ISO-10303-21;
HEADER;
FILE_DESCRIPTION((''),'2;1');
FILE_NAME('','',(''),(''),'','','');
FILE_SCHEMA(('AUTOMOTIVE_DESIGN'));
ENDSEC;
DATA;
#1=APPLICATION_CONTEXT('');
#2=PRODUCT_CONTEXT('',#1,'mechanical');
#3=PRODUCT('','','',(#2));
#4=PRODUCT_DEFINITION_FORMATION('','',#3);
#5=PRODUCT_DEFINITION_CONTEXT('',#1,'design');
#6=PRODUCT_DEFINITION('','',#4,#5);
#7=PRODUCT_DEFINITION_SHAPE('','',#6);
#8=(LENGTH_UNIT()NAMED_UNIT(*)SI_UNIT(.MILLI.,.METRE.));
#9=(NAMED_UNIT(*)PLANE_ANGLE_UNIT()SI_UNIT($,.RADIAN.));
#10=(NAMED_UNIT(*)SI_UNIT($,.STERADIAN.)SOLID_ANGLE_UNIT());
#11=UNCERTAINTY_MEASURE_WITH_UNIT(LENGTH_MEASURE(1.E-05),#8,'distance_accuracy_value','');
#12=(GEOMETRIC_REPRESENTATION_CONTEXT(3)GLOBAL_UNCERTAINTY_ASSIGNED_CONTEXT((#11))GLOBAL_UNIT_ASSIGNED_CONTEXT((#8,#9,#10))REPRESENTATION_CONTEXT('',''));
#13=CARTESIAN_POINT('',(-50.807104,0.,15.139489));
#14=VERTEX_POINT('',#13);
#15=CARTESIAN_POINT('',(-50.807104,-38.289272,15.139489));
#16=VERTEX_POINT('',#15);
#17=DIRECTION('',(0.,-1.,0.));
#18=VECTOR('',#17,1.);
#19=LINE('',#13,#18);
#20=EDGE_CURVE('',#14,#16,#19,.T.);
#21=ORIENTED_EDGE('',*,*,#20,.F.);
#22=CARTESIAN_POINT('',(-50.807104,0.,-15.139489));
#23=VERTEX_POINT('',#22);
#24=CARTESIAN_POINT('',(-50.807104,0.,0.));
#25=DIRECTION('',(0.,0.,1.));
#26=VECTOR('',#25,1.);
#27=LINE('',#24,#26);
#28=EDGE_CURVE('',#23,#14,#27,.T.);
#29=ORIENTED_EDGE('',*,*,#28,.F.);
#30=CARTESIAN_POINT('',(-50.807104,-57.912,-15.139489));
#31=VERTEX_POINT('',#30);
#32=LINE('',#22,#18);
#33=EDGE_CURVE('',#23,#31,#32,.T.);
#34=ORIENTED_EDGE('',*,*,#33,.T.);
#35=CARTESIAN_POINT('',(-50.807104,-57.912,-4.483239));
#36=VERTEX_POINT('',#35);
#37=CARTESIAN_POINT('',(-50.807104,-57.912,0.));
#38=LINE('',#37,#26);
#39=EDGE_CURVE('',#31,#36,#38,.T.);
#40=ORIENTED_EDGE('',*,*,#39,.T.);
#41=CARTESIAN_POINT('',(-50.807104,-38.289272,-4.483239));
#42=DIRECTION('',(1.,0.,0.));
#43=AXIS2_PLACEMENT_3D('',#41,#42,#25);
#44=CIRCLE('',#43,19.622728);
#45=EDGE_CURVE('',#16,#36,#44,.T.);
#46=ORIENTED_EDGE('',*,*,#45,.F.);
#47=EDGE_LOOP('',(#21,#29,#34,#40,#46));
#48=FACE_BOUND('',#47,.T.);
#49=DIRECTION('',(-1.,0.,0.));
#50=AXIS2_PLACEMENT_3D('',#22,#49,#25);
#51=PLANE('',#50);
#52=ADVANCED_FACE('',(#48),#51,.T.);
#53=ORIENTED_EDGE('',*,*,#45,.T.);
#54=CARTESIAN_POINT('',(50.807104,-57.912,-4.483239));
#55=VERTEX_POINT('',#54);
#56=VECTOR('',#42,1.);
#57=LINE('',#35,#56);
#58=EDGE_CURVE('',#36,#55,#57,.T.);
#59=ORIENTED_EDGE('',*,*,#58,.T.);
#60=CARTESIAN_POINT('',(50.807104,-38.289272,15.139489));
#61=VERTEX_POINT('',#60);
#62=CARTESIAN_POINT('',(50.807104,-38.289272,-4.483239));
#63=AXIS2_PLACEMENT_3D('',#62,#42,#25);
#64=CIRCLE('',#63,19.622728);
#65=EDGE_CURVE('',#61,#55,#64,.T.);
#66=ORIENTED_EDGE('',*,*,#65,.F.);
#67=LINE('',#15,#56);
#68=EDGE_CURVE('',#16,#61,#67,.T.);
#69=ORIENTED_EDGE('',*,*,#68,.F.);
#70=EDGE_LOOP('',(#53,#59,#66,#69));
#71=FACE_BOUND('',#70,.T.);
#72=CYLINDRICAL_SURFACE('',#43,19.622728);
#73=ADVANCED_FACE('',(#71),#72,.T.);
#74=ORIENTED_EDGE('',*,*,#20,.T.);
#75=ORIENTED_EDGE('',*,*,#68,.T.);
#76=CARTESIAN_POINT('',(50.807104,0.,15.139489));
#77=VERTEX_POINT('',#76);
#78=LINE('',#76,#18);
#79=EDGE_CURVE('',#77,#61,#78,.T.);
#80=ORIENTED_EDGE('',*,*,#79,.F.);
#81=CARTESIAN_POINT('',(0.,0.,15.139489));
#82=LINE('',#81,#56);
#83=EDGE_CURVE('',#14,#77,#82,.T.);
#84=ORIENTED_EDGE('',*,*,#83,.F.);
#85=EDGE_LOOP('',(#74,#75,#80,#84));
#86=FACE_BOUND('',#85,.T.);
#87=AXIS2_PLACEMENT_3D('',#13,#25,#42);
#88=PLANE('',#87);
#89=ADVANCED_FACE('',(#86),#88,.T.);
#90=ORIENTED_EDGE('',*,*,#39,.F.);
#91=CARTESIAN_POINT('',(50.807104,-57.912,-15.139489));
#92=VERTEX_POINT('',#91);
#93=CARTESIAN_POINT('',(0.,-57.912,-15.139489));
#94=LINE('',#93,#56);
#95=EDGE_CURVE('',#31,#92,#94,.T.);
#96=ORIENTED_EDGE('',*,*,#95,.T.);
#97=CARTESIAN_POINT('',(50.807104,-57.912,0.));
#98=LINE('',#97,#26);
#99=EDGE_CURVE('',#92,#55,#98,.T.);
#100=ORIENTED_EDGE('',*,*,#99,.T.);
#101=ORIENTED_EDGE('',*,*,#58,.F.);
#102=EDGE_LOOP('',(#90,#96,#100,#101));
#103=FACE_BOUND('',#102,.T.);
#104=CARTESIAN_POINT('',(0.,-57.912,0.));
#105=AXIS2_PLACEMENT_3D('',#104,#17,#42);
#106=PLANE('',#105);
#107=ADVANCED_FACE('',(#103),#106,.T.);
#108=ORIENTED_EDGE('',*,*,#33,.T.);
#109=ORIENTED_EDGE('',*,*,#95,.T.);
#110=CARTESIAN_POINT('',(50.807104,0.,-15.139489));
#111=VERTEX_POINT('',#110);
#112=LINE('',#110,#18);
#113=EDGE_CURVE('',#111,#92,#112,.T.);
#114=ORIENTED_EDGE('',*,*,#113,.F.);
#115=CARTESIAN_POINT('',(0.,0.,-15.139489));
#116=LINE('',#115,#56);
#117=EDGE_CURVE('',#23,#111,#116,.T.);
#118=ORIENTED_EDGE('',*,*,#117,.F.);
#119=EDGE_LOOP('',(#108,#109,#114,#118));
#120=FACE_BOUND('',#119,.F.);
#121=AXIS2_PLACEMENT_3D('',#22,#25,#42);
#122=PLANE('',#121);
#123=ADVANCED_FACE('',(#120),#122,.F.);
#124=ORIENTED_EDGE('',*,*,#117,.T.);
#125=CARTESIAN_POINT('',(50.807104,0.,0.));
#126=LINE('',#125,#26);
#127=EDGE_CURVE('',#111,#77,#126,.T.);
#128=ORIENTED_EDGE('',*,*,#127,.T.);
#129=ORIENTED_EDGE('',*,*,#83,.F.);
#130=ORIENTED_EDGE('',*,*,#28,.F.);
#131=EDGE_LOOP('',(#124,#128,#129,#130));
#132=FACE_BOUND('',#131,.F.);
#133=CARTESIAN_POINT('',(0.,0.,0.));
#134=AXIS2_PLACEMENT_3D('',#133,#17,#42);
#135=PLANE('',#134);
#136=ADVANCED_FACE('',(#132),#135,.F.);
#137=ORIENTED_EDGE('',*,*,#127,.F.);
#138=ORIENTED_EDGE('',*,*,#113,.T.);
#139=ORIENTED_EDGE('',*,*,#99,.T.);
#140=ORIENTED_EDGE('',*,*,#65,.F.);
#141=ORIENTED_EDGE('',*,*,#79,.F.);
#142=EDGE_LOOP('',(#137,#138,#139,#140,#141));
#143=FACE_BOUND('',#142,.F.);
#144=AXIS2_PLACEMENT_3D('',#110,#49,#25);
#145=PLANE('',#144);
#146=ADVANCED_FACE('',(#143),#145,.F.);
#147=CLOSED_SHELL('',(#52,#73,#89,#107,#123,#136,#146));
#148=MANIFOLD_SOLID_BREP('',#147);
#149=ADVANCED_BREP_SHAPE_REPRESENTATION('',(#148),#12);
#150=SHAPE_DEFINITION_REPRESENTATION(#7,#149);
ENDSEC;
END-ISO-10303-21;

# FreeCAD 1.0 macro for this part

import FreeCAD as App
import Part
import Sketcher
from FreeCAD import Vector
Q = App.Units.Quantity


def edges_at(feature, points):
    """Names of the edges that pass closest to the given points."""
    edges = feature.Shape.Edges
    near = lambda p: min(range(len(edges)), key=lambda i: edges[i].distToShape(Part.Vertex(*p))[0])
    return sorted({f"Edge{near(p) + 1}" for p in points})

doc = App.newDocument("Part")
body = doc.addObject("PartDesign::Body", "Body")

# Sketch on XZ plane
sketch1 = body.newObject("Sketcher::SketchObject", "Sketch")
sketch1.AttachmentSupport = (doc.getObject("XZ_Plane"), [""])
sketch1.MapMode = "FlatFace"
sketch1.addGeometry(Part.LineSegment(Vector(-51, 15, 0), Vector(-51, -15, 0)), False)
sketch1.addGeometry(Part.LineSegment(Vector(-51, -15, 0), Vector(51, -15, 0)), False)
sketch1.addGeometry(Part.LineSegment(Vector(51, -15, 0), Vector(51, 15, 0)), False)
sketch1.addGeometry(Part.LineSegment(Vector(51, 15, 0), Vector(-51, 15, 0)), False)
sketch1.addConstraint(Sketcher.Constraint("Coincident", 0, 2, 1, 1))
sketch1.addConstraint(Sketcher.Constraint("Coincident", 1, 2, 2, 1))
sketch1.addConstraint(Sketcher.Constraint("Coincident", 2, 2, 3, 1))
sketch1.addConstraint(Sketcher.Constraint("Coincident", 3, 2, 0, 1))
sketch1.addConstraint(Sketcher.Constraint("Vertical", 0))
sketch1.addConstraint(Sketcher.Constraint("Horizontal", 1))
sketch1.addConstraint(Sketcher.Constraint("Vertical", 2))
sketch1.addConstraint(Sketcher.Constraint("Horizontal", 3))
sketch1.addConstraint(Sketcher.Constraint("Symmetric", 0, 2, 2, 2, -1, 1))
sketch1.addConstraint(Sketcher.Constraint("DistanceX", 1, 1, 1, 2, Q("101.614208 mm")))
sketch1.addConstraint(Sketcher.Constraint("DistanceY", 0, 2, 0, 1, Q("30.278978 mm")))
pad1 = body.newObject("PartDesign::Pad", "Pad")
pad1.Profile = sketch1
pad1.Length = Q("2.28 in")
doc.recompute()

fillet = body.newObject("PartDesign::Fillet", "Fillet")
fillet.Base = (pad1, edges_at(pad1, [(0, -57.912, 15.139)]))
fillet.Radius = 19.622728

doc.recompute()
